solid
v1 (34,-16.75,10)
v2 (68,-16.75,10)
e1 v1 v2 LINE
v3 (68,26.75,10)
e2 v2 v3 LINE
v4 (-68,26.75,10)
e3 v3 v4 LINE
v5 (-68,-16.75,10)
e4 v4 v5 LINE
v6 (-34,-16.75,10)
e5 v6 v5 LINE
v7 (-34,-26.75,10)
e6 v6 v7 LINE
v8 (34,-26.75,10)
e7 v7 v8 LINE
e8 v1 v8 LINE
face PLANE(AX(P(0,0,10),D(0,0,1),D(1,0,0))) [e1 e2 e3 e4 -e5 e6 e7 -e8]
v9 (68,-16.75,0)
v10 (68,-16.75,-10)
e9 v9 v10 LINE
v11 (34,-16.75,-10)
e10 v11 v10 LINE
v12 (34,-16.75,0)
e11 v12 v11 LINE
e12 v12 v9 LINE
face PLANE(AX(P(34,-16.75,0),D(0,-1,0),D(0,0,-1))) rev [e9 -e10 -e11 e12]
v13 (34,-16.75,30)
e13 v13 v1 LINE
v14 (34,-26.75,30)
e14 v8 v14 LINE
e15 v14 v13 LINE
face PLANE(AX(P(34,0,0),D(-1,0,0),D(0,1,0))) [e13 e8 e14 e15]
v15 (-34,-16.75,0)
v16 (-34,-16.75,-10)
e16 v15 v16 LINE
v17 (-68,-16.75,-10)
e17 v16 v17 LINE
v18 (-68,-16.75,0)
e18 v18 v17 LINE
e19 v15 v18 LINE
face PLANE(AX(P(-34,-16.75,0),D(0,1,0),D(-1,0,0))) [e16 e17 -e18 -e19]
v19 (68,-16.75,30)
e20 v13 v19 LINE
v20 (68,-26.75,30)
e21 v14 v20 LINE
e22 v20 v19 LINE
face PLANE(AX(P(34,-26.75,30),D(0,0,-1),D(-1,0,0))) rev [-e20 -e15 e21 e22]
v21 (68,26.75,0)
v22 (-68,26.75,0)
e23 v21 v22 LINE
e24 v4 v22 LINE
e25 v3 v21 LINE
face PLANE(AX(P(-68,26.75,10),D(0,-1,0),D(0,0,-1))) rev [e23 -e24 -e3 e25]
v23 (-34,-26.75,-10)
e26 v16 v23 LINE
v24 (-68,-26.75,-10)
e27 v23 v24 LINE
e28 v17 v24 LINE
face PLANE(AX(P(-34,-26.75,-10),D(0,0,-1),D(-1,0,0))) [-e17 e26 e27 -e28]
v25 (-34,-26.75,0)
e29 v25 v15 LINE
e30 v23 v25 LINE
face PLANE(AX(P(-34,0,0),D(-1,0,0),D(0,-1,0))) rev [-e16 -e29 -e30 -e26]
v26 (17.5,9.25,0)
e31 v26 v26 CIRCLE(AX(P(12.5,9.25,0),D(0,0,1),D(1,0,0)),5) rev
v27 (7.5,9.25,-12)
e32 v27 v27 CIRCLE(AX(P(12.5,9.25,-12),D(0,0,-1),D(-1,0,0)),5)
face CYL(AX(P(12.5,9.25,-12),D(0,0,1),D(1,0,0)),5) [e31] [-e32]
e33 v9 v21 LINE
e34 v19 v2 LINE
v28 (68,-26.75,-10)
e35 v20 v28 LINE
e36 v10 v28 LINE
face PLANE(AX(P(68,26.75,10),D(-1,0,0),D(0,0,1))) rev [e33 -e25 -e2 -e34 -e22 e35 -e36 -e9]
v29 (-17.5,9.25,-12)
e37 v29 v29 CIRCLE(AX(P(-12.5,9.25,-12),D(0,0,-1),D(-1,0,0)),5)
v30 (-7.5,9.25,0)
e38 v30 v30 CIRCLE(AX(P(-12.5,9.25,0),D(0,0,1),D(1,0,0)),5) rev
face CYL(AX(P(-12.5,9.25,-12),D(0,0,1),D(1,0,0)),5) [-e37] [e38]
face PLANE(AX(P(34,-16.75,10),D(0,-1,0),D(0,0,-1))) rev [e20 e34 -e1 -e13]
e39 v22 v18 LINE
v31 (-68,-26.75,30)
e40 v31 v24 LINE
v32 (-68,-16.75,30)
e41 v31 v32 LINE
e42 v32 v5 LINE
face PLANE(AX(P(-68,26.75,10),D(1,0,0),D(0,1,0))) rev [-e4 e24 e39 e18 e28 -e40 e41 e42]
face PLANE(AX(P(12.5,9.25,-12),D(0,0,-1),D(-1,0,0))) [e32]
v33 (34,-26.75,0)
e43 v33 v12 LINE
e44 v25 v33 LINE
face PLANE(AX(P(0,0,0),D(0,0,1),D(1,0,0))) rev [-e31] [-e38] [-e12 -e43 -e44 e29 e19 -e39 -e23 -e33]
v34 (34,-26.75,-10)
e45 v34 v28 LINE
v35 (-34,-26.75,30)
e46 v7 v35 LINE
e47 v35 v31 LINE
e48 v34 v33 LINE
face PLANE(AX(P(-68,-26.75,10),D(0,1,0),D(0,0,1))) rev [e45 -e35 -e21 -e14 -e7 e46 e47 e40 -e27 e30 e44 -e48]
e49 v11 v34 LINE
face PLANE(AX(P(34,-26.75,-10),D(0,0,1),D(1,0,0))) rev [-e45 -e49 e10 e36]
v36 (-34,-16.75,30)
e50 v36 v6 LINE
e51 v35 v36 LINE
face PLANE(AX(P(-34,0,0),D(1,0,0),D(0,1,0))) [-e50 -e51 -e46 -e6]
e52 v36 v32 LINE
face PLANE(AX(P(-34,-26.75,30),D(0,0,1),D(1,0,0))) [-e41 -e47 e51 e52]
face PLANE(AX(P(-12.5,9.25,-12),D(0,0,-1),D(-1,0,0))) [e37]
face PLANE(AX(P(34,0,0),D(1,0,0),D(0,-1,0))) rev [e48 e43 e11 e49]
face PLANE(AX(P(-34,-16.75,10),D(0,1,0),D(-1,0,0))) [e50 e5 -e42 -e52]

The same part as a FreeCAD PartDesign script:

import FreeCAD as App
import Part
import Sketcher

V = App.Vector

doc = App.newDocument("Part")
body = doc.addObject("PartDesign::Body", "Body")

# Sketch on XY plane
sketch1 = body.newObject("Sketcher::SketchObject", "Sketch")
sketch1.AttachmentSupport = (doc.getObject("XY_Plane"), [""])
sketch1.MapMode = "FlatFace"
sketch1.addGeometry(Part.LineSegment(V(-68, 26.75, 0), V(-68, -26.75, 0)), False)
sketch1.addGeometry(Part.LineSegment(V(-68, -26.75, 0), V(68, -26.75, 0)), False)
sketch1.addGeometry(Part.LineSegment(V(68, -26.75, 0), V(68, 26.75, 0)), False)
sketch1.addGeometry(Part.LineSegment(V(68, 26.75, 0), V(-68, 26.75, 0)), False)
sketch1.addConstraint(Sketcher.Constraint("Coincident", 0, 2, 1, 1))
sketch1.addConstraint(Sketcher.Constraint("Coincident", 1, 2, 2, 1))
sketch1.addConstraint(Sketcher.Constraint("Coincident", 2, 2, 3, 1))
sketch1.addConstraint(Sketcher.Constraint("Coincident", 3, 2, 0, 1))
sketch1.addConstraint(Sketcher.Constraint("Vertical", 0))
sketch1.addConstraint(Sketcher.Constraint("Horizontal", 1))
sketch1.addConstraint(Sketcher.Constraint("Vertical", 2))
sketch1.addConstraint(Sketcher.Constraint("Horizontal", 3))
sketch1.addConstraint(Sketcher.Constraint("Symmetric", 0, 2, 2, 2, -1, 1))
sketch1.addConstraint(Sketcher.Constraint("DistanceX", 1, 1, 1, 2, 136.0))
sketch1.addConstraint(Sketcher.Constraint("DistanceY", 0, 2, 0, 1, 53.5))
pad1 = body.newObject("PartDesign::Pad", "Pad")
pad1.Profile = sketch1
pad1.Length = 10

# Sketch on XY plane
sketch2 = body.newObject("Sketcher::SketchObject", "Sketch001")
sketch2.AttachmentSupport = (doc.getObject("XY_Plane"), [""])
sketch2.MapMode = "FlatFace"
sketch2.addGeometry(Part.Circle(V(-12.5, 9.25, 0), V(0, 0, 1), 5), False)
sketch2.addGeometry(Part.Circle(V(12.5, 9.25, 0), V(0, 0, 1), 5), False)
sketch2.addConstraint(Sketcher.Constraint("Equal", 0, 1))
sketch2.addConstraint(Sketcher.Constraint("Symmetric", 0, 3, 1, 3, -2))
sketch2.addConstraint(Sketcher.Constraint("Diameter", 0, 10.0))
sketch2.addConstraint(Sketcher.Constraint("DistanceX", 0, 3, 1, 3, 25.0))
sketch2.addConstraint(Sketcher.Constraint("DistanceY", -1, 1, 0, 3, 9.25))
pad2 = body.newObject("PartDesign::Pad", "Pad001")
pad2.Profile = sketch2
pad2.Length = 12
pad2.Reversed = True

# Sketch on YZ plane
sketch3 = body.newObject("Sketcher::SketchObject", "Sketch002")
sketch3.AttachmentSupport = (doc.getObject("YZ_Plane"), [""])
sketch3.MapMode = "FlatFace"
sketch3.AttachmentOffset = App.Placement(V(0, 0, -68), App.Rotation())
sketch3.addGeometry(Part.LineSegment(V(-16.75, -10, 0), V(-26.75, -10, 0)), False)
sketch3.addGeometry(Part.LineSegment(V(-26.75, -10, 0), V(-26.75, 0, 0)), False)
sketch3.addGeometry(Part.LineSegment(V(-26.75, 0, 0), V(-16.75, 0, 0)), False)
sketch3.addGeometry(Part.LineSegment(V(-16.75, 0, 0), V(-16.75, -10, 0)), False)
sketch3.addGeometry(Part.LineSegment(V(-16.75, 10, 0), V(-26.75, 10, 0)), False)
sketch3.addGeometry(Part.LineSegment(V(-26.75, 10, 0), V(-26.75, 30, 0)), False)
sketch3.addGeometry(Part.LineSegment(V(-26.75, 30, 0), V(-16.75, 30, 0)), False)
sketch3.addGeometry(Part.LineSegment(V(-16.75, 30, 0), V(-16.75, 10, 0)), False)
sketch3.addConstraint(Sketcher.Constraint("Coincident", 0, 2, 1, 1))
sketch3.addConstraint(Sketcher.Constraint("Coincident", 1, 2, 2, 1))
sketch3.addConstraint(Sketcher.Constraint("Coincident", 2, 2, 3, 1))
sketch3.addConstraint(Sketcher.Constraint("Coincident", 3, 2, 0, 1))
sketch3.addConstraint(Sketcher.Constraint("Coincident", 4, 2, 5, 1))
sketch3.addConstraint(Sketcher.Constraint("Coincident", 5, 2, 6, 1))
sketch3.addConstraint(Sketcher.Constraint("Coincident", 6, 2, 7, 1))
sketch3.addConstraint(Sketcher.Constraint("Coincident", 7, 2, 4, 1))
sketch3.addConstraint(Sketcher.Constraint("Horizontal", 0))
sketch3.addConstraint(Sketcher.Constraint("Vertical", 1))
sketch3.addConstraint(Sketcher.Constraint("Horizontal", 2))
sketch3.addConstraint(Sketcher.Constraint("Vertical", 3))
sketch3.addConstraint(Sketcher.Constraint("Horizontal", 4))
sketch3.addConstraint(Sketcher.Constraint("Vertical", 5))
sketch3.addConstraint(Sketcher.Constraint("Horizontal", 6))
sketch3.addConstraint(Sketcher.Constraint("Vertical", 7))
sketch3.addConstraint(Sketcher.Constraint("Symmetric", 0, 2, 4, 2, -1))
sketch3.addConstraint(Sketcher.Constraint("PointOnObject", 1, 2, -1))
sketch3.addConstraint(Sketcher.Constraint("Vertical", 3, 2, 6, 2))
sketch3.addConstraint(Sketcher.Constraint("Equal", 6, 1))
sketch3.addConstraint(Sketcher.Constraint("DistanceX", 0, 2, 0, 1, 10.0))
sketch3.addConstraint(Sketcher.Constraint("DistanceY", 5, 1, 5, 2, 20.0))
sketch3.addConstraint(Sketcher.Constraint("DistanceX", 0, 2, -1, 1, 26.75))
pad3 = body.newObject("PartDesign::Pad", "Pad002")
pad3.Profile = sketch3
pad3.Length = 34
doc.recompute()

mirrored = body.newObject("PartDesign::Mirrored", "Mirrored")
mirrored.Originals = [pad3]
mirrored.MirrorPlane = (doc.getObject("YZ_Plane"), [""])
body.Tip = mirrored

doc.recompute()
